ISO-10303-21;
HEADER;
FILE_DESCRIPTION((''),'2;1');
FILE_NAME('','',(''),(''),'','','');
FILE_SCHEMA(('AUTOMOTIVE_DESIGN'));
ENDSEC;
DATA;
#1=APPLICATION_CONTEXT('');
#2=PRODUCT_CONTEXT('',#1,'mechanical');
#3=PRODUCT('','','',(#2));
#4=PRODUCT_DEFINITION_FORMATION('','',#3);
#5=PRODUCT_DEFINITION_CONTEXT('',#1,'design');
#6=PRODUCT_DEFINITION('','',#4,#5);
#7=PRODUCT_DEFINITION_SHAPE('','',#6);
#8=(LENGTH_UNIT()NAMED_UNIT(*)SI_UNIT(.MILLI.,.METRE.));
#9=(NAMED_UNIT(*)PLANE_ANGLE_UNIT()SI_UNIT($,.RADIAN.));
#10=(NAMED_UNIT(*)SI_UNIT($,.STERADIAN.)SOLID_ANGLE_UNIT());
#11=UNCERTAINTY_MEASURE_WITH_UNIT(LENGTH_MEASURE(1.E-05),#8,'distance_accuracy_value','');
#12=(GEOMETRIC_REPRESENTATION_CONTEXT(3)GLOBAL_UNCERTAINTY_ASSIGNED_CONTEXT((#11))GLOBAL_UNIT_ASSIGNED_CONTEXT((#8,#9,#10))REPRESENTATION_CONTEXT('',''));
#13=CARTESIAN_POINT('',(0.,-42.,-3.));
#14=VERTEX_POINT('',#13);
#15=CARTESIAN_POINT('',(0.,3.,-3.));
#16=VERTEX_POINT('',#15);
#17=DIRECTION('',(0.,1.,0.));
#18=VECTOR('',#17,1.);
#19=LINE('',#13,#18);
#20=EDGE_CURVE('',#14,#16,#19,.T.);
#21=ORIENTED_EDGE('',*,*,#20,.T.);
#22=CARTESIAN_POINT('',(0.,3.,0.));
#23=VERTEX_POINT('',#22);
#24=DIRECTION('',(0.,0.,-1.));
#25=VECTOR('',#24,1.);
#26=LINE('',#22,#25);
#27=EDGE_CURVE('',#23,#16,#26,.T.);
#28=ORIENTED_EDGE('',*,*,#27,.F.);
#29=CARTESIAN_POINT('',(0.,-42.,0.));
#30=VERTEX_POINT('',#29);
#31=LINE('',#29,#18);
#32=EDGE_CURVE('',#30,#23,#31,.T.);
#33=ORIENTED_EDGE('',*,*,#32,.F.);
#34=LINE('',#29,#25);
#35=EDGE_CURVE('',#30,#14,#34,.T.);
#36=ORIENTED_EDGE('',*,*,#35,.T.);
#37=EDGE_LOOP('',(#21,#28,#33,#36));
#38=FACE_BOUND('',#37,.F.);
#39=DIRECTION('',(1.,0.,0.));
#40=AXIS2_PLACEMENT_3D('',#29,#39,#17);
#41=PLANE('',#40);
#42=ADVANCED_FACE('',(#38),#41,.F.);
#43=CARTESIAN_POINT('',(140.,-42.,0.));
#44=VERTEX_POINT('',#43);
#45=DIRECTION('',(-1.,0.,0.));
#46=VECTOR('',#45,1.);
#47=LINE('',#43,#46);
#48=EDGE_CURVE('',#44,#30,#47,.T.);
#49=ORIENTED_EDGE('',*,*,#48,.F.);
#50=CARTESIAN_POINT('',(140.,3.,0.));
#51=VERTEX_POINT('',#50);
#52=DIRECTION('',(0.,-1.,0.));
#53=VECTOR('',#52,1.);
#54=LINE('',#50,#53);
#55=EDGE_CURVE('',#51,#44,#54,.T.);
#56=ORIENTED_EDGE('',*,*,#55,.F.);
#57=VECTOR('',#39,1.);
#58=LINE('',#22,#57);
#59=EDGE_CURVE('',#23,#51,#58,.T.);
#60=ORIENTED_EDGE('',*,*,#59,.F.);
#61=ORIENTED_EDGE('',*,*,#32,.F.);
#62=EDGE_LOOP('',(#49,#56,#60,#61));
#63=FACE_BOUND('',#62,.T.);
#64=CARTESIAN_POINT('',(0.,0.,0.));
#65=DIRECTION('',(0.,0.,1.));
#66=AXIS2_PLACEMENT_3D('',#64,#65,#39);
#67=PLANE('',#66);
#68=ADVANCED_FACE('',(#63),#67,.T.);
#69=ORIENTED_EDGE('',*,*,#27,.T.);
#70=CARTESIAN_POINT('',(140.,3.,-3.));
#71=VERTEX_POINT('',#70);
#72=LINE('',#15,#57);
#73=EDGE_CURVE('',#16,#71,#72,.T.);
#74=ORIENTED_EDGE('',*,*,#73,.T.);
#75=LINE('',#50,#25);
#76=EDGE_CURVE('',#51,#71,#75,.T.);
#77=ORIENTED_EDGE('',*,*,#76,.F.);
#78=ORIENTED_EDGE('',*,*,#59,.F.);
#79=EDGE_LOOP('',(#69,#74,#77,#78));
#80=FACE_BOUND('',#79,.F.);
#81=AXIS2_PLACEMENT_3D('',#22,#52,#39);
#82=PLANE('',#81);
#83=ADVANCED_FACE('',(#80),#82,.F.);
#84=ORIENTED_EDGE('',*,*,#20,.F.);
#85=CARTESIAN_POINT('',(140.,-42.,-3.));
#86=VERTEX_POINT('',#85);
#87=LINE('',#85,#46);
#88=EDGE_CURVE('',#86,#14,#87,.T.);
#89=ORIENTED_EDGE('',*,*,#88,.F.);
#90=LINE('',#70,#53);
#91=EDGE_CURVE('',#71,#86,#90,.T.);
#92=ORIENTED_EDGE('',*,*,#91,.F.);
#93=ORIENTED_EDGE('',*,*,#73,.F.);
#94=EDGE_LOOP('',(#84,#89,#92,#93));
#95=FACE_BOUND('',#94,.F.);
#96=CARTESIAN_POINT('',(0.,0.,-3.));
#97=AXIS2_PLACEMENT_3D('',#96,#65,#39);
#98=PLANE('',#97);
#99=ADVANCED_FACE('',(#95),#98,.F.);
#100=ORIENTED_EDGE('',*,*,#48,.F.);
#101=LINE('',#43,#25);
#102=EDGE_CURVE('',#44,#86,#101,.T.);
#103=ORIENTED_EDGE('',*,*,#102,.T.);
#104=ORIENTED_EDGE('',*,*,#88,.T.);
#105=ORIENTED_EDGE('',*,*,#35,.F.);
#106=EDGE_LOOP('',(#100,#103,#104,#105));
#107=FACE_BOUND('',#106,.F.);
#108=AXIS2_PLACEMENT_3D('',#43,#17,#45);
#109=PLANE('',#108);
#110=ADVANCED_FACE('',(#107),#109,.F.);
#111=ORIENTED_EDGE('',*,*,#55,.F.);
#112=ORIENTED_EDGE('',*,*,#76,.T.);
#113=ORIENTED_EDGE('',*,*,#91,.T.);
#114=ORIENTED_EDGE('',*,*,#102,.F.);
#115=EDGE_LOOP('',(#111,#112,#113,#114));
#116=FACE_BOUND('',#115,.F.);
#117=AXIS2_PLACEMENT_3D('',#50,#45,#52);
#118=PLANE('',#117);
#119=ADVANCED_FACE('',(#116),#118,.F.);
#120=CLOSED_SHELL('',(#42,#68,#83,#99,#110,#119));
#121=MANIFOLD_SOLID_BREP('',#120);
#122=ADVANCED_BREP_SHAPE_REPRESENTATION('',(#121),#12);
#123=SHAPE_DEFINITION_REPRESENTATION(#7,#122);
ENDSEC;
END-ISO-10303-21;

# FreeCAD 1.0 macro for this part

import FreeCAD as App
import Part
import Sketcher
from FreeCAD import Vector
Q = App.Units.Quantity


def add_polygon(sketch, points):
    """Adds a closed chain of lines whose ends are joined by coincident constraints."""
    first, n = sketch.GeometryCount, len(points)
    for a, b in zip(points, points[1:] + points[:1]):
        sketch.addGeometry(Part.LineSegment(App.Vector(*a, 0), App.Vector(*b, 0)), False)
    for i in range(n):
        sketch.addConstraint(Sketcher.Constraint("Coincident", first + i, 2, first + (i + 1) % n, 1))

doc = App.newDocument("Part")
body = doc.addObject("PartDesign::Body", "Body")

sketch1 = body.newObject("Sketcher::SketchObject", "Sketch")
sketch1.AttachmentSupport = (doc.getObject("XY_Plane"), [""])
sketch1.MapMode = "FlatFace"
add_polygon(sketch1, [(140, 3), (0, 3), (0, -42), (140, -42)])
sketch1.addConstraint(Sketcher.Constraint("Horizontal", 0))
sketch1.addConstraint(Sketcher.Constraint("Vertical", 1))
sketch1.addConstraint(Sketcher.Constraint("Horizontal", 2))
sketch1.addConstraint(Sketcher.Constraint("Vertical", 3))
sketch1.addConstraint(Sketcher.Constraint("PointOnObject", 0, 2, -2))
sketch1.addConstraint(Sketcher.Constraint("DistanceX", 0, 2, 0, 1, Q("140 mm")))
sketch1.addConstraint(Sketcher.Constraint("DistanceY", 1, 2, 1, 1, Q("45 mm")))
sketch1.addConstraint(Sketcher.Constraint("DistanceY", -1, 1, 0, 2, Q("3 mm")))
pad1 = body.newObject("PartDesign::Pad", "Pad")
pad1.Profile = sketch1
pad1.Length = 3
pad1.Reversed = True

doc.recompute()
